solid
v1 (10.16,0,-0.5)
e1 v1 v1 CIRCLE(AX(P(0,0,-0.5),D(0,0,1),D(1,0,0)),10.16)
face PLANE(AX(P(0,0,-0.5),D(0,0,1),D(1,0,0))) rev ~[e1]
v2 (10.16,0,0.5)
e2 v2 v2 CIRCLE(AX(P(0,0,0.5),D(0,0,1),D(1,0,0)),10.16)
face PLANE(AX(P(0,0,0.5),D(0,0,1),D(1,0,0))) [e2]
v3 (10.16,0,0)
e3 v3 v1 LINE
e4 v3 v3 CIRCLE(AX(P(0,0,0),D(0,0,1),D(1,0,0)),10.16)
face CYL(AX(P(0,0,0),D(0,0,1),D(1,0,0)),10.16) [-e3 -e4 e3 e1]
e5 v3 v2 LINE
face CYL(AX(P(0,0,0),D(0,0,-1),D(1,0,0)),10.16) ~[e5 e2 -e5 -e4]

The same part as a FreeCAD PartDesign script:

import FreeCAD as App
import Part
import Sketcher

V = App.Vector
Q = App.Units.Quantity

doc = App.newDocument("Part")
body = doc.addObject("PartDesign::Body", "Body")

sketch1 = doc.addObject("Sketcher::SketchObject", "Sketch")
body.addObject(sketch1)
sketch1.AttachmentSupport = (doc.XY_Plane, [""])
sketch1.MapMode = "FlatFace"
sketch1.addGeometry(Part.Circle(V(0, 0, 0), V(0, 0, 1), 10), False)
sketch1.addConstraint([
    Sketcher.Constraint("Coincident", 0, 3, -1, 1),
    Sketcher.Constraint("Diameter", 0, Q("20.32 mm")),
])
pad1 = doc.addObject("PartDesign::Pad", "Pad")
body.addObject(pad1)
pad1.Profile = sketch1
pad1.Length = 1
pad1.Midplane = True

doc.recompute()
